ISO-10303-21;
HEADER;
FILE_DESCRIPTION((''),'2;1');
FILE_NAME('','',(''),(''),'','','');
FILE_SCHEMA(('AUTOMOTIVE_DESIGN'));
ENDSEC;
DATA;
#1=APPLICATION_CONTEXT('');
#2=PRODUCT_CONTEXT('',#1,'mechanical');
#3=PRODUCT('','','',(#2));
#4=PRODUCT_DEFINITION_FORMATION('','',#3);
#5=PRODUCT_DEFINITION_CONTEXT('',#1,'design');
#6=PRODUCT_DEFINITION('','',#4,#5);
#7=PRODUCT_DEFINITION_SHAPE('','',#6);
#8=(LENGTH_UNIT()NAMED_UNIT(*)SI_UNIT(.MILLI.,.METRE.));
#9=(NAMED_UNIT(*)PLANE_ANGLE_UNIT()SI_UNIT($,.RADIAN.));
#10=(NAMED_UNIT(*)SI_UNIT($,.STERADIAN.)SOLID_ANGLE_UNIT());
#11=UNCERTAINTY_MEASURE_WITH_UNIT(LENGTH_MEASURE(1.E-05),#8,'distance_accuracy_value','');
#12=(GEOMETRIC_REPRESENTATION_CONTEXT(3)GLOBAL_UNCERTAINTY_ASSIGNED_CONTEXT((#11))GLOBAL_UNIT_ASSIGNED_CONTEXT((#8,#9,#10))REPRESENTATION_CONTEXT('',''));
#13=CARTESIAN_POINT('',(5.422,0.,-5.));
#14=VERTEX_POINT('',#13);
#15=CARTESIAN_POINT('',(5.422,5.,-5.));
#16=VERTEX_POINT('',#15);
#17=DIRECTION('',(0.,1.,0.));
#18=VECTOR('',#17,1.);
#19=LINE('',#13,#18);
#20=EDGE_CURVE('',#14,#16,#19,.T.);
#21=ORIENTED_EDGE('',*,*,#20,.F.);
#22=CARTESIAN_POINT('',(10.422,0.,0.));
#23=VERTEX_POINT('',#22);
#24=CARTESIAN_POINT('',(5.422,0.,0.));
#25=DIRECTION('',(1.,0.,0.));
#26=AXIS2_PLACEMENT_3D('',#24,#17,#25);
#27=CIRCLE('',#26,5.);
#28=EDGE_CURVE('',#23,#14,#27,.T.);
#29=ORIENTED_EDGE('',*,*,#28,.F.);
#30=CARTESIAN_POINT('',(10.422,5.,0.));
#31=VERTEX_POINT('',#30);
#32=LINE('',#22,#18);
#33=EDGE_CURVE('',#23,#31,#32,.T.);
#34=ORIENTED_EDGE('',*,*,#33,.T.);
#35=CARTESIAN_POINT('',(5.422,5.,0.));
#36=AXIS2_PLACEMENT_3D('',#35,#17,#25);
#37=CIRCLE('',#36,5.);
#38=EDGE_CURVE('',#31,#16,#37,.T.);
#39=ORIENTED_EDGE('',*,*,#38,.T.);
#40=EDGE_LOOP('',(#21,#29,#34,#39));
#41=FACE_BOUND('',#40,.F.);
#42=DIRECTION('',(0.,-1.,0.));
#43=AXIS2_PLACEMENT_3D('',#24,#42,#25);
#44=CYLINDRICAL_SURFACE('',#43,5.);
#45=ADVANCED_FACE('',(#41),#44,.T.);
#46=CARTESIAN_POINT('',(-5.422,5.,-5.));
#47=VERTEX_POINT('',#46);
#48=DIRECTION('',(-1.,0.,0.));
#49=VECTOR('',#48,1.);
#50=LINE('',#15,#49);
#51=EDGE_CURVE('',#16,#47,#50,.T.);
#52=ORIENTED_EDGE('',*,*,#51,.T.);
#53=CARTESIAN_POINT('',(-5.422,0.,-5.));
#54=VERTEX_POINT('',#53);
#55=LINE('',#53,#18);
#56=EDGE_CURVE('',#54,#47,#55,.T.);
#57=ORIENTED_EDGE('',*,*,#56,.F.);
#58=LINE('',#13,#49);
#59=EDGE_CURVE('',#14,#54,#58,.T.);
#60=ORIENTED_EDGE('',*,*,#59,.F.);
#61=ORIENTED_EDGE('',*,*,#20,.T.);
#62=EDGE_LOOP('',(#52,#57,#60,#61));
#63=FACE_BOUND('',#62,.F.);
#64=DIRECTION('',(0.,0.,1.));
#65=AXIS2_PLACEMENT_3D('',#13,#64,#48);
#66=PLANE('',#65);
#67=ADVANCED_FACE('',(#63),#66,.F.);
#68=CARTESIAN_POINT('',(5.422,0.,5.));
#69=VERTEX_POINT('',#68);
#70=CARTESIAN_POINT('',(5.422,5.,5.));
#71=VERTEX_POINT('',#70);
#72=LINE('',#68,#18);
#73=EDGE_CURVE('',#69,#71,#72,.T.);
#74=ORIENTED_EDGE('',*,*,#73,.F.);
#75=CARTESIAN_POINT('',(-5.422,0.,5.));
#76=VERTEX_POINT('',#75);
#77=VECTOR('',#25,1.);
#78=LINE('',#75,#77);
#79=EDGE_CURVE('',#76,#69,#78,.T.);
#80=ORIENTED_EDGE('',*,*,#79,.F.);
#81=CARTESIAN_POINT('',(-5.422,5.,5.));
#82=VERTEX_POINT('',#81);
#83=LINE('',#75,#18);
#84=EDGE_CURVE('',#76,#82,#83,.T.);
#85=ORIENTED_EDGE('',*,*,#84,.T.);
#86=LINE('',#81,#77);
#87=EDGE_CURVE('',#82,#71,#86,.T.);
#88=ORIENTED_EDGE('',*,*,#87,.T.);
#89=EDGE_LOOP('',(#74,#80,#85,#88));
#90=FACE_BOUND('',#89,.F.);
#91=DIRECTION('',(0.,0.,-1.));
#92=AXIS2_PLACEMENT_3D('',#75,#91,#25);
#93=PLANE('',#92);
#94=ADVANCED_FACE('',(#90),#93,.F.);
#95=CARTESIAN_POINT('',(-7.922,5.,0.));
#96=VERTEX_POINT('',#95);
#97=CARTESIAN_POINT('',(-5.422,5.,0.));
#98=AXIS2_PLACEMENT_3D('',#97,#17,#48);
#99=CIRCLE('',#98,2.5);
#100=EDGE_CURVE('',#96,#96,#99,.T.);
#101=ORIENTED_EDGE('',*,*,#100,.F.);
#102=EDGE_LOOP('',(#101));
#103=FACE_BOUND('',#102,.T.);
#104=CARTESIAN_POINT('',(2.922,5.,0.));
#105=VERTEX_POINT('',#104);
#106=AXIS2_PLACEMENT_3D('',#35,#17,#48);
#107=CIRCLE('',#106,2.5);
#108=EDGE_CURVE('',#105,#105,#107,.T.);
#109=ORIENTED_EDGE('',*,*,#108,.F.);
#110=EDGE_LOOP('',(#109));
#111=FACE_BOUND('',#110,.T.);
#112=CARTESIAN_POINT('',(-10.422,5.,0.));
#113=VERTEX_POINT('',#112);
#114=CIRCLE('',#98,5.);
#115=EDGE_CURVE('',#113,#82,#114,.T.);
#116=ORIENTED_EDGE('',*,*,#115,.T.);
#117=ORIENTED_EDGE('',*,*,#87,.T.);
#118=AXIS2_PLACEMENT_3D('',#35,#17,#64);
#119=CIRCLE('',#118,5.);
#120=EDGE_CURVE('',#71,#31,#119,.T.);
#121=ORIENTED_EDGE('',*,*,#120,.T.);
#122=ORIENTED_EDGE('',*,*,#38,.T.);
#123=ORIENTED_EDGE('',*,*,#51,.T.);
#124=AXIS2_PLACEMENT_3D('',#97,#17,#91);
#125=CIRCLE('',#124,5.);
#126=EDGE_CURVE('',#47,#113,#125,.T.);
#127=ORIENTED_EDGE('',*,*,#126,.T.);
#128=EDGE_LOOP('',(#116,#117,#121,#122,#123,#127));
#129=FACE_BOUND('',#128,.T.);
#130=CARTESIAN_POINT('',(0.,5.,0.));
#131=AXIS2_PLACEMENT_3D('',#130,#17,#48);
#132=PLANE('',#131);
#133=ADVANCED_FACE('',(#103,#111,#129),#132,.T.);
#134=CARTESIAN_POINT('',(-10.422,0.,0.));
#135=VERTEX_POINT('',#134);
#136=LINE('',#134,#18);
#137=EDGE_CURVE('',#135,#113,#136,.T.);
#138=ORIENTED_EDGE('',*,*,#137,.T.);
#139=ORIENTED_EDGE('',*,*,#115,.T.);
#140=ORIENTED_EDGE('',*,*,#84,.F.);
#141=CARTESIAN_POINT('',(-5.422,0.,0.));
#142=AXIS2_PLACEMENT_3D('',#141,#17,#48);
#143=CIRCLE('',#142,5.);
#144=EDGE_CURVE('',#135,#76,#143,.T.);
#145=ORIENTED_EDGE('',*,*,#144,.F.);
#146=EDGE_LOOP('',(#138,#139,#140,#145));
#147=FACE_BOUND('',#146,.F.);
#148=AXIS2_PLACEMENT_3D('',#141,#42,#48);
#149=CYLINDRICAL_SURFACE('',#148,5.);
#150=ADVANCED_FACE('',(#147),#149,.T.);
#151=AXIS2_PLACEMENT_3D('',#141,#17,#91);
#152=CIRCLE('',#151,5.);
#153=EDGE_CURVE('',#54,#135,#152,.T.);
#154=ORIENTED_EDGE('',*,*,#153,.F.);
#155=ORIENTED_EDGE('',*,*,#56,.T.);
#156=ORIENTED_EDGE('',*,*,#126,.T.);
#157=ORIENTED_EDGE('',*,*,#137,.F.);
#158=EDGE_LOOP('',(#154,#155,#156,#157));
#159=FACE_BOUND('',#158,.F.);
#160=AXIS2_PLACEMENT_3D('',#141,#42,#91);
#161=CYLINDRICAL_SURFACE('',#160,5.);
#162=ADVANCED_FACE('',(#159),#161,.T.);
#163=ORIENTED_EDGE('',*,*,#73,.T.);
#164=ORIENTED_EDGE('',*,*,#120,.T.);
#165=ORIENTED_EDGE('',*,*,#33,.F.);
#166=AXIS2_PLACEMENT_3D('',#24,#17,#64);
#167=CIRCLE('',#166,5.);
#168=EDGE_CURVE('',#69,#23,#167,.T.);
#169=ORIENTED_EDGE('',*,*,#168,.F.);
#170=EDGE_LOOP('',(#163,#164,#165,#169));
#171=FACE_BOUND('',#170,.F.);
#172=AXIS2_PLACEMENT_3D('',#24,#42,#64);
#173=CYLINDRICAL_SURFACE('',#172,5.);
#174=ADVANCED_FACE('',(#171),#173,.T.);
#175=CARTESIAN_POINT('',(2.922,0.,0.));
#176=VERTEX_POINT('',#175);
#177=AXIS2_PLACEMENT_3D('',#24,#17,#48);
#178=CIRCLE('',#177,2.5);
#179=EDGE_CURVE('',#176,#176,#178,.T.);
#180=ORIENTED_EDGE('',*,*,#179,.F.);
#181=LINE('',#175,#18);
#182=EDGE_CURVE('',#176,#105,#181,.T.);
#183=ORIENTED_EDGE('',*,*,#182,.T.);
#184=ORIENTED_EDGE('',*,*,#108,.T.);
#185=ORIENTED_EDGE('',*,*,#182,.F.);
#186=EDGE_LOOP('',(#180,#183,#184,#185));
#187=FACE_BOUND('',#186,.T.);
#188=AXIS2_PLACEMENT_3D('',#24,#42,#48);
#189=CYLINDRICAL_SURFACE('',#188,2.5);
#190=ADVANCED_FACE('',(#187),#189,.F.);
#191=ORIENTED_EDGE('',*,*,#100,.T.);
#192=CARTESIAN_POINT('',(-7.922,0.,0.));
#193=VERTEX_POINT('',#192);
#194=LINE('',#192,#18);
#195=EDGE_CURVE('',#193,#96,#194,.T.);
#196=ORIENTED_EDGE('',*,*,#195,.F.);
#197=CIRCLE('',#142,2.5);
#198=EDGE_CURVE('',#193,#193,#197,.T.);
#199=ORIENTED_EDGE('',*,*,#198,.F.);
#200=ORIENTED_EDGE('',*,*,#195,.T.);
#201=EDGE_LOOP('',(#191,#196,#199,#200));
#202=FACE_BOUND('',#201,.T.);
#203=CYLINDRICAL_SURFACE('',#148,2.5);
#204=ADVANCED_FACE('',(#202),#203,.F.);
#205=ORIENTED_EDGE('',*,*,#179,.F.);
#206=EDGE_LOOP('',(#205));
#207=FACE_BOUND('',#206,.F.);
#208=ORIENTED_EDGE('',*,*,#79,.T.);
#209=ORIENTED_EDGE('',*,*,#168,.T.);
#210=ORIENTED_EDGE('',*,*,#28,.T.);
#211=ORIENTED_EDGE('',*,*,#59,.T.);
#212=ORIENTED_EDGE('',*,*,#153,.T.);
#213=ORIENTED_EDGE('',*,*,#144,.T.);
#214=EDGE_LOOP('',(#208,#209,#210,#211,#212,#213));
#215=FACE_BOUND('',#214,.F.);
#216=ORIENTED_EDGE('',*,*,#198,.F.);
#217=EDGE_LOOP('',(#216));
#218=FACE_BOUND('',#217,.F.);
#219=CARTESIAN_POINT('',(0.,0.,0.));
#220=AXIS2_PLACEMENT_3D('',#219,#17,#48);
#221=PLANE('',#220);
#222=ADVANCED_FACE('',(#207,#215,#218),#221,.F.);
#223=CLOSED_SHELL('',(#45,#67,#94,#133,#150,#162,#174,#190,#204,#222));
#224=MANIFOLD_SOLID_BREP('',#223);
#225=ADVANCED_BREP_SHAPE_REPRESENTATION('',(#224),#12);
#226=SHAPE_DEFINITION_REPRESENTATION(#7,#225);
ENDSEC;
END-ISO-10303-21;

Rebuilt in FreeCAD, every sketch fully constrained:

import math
import FreeCAD as App
import Part
import Sketcher

V = App.Vector

doc = App.newDocument("Part")
params = doc.addObject("Spreadsheet::Sheet", "Params")
for row, (alias, value) in enumerate([
    ("sketch1_diameter", "5 mm"),
    ("sketch1_radius", "5 mm"),
    ("pad1_length", "5 mm"),
], start=1):
    params.set(f"A{row}", alias)
    params.set(f"B{row}", "=" + value)
    params.setAlias(f"B{row}", alias)

body = doc.addObject("PartDesign::Body", "Body")

# Sketch on XZ plane
sketch1 = body.newObject("Sketcher::SketchObject", "Sketch")
sketch1.AttachmentSupport = (doc.getObject("XZ_Plane"), [""])
sketch1.MapMode = "FlatFace"
sketch1.addGeometry(Part.ArcOfCircle(Part.Circle(V(5.422, 0, 0), V(0, 0, 1), 5), math.radians(-90), math.radians(90)), False)
sketch1.addGeometry(Part.LineSegment(V(5.422, -5, 0), V(-5.422, -5, 0)), False)
sketch1.addGeometry(Part.ArcOfCircle(Part.Circle(V(-5.422, 0, 0), V(0, 0, 1), 5), math.radians(90), math.radians(270)), False)
sketch1.addGeometry(Part.LineSegment(V(-5.422, 5, 0), V(5.422, 5, 0)), False)
sketch1.addGeometry(Part.Circle(V(5.422, 0, 0), V(0, 0, 1), 2.5), False)
sketch1.addGeometry(Part.Circle(V(-5.422, 0, 0), V(0, 0, 1), 2.5), False)
sketch1.addConstraint(Sketcher.Constraint("Tangent", 0, 1, 1, 1))
sketch1.addConstraint(Sketcher.Constraint("Tangent", 1, 2, 2, 2))
sketch1.addConstraint(Sketcher.Constraint("Tangent", 2, 1, 3, 1))
sketch1.addConstraint(Sketcher.Constraint("Tangent", 3, 2, 0, 2))
sketch1.addConstraint(Sketcher.Constraint("Horizontal", 1))
sketch1.addConstraint(Sketcher.Constraint("Horizontal", 3))
sketch1.addConstraint(Sketcher.Constraint("Coincident", 4, 3, 0, 3))
sketch1.addConstraint(Sketcher.Constraint("Coincident", 5, 3, 2, 3))
sketch1.addConstraint(Sketcher.Constraint("Equal", 4, 5))
sketch1.addConstraint(Sketcher.Constraint("Symmetric", 0, 3, 2, 3, -1, 1))
sketch1.addConstraint(Sketcher.Constraint("Diameter", 4, 5.0))
sketch1.addConstraint(Sketcher.Constraint("Radius", 0, 5.0))
sketch1.addConstraint(Sketcher.Constraint("DistanceX", 1, 2, 1, 1, 10.844))
sketch1.setExpression("Constraints[10]", "Params.sketch1_diameter")
sketch1.setExpression("Constraints[11]", "Params.sketch1_radius")
pad1 = body.newObject("PartDesign::Pad", "Pad")
pad1.Profile = sketch1
pad1.setExpression("Length", "Params.pad1_length")
pad1.Reversed = True

doc.recompute()
